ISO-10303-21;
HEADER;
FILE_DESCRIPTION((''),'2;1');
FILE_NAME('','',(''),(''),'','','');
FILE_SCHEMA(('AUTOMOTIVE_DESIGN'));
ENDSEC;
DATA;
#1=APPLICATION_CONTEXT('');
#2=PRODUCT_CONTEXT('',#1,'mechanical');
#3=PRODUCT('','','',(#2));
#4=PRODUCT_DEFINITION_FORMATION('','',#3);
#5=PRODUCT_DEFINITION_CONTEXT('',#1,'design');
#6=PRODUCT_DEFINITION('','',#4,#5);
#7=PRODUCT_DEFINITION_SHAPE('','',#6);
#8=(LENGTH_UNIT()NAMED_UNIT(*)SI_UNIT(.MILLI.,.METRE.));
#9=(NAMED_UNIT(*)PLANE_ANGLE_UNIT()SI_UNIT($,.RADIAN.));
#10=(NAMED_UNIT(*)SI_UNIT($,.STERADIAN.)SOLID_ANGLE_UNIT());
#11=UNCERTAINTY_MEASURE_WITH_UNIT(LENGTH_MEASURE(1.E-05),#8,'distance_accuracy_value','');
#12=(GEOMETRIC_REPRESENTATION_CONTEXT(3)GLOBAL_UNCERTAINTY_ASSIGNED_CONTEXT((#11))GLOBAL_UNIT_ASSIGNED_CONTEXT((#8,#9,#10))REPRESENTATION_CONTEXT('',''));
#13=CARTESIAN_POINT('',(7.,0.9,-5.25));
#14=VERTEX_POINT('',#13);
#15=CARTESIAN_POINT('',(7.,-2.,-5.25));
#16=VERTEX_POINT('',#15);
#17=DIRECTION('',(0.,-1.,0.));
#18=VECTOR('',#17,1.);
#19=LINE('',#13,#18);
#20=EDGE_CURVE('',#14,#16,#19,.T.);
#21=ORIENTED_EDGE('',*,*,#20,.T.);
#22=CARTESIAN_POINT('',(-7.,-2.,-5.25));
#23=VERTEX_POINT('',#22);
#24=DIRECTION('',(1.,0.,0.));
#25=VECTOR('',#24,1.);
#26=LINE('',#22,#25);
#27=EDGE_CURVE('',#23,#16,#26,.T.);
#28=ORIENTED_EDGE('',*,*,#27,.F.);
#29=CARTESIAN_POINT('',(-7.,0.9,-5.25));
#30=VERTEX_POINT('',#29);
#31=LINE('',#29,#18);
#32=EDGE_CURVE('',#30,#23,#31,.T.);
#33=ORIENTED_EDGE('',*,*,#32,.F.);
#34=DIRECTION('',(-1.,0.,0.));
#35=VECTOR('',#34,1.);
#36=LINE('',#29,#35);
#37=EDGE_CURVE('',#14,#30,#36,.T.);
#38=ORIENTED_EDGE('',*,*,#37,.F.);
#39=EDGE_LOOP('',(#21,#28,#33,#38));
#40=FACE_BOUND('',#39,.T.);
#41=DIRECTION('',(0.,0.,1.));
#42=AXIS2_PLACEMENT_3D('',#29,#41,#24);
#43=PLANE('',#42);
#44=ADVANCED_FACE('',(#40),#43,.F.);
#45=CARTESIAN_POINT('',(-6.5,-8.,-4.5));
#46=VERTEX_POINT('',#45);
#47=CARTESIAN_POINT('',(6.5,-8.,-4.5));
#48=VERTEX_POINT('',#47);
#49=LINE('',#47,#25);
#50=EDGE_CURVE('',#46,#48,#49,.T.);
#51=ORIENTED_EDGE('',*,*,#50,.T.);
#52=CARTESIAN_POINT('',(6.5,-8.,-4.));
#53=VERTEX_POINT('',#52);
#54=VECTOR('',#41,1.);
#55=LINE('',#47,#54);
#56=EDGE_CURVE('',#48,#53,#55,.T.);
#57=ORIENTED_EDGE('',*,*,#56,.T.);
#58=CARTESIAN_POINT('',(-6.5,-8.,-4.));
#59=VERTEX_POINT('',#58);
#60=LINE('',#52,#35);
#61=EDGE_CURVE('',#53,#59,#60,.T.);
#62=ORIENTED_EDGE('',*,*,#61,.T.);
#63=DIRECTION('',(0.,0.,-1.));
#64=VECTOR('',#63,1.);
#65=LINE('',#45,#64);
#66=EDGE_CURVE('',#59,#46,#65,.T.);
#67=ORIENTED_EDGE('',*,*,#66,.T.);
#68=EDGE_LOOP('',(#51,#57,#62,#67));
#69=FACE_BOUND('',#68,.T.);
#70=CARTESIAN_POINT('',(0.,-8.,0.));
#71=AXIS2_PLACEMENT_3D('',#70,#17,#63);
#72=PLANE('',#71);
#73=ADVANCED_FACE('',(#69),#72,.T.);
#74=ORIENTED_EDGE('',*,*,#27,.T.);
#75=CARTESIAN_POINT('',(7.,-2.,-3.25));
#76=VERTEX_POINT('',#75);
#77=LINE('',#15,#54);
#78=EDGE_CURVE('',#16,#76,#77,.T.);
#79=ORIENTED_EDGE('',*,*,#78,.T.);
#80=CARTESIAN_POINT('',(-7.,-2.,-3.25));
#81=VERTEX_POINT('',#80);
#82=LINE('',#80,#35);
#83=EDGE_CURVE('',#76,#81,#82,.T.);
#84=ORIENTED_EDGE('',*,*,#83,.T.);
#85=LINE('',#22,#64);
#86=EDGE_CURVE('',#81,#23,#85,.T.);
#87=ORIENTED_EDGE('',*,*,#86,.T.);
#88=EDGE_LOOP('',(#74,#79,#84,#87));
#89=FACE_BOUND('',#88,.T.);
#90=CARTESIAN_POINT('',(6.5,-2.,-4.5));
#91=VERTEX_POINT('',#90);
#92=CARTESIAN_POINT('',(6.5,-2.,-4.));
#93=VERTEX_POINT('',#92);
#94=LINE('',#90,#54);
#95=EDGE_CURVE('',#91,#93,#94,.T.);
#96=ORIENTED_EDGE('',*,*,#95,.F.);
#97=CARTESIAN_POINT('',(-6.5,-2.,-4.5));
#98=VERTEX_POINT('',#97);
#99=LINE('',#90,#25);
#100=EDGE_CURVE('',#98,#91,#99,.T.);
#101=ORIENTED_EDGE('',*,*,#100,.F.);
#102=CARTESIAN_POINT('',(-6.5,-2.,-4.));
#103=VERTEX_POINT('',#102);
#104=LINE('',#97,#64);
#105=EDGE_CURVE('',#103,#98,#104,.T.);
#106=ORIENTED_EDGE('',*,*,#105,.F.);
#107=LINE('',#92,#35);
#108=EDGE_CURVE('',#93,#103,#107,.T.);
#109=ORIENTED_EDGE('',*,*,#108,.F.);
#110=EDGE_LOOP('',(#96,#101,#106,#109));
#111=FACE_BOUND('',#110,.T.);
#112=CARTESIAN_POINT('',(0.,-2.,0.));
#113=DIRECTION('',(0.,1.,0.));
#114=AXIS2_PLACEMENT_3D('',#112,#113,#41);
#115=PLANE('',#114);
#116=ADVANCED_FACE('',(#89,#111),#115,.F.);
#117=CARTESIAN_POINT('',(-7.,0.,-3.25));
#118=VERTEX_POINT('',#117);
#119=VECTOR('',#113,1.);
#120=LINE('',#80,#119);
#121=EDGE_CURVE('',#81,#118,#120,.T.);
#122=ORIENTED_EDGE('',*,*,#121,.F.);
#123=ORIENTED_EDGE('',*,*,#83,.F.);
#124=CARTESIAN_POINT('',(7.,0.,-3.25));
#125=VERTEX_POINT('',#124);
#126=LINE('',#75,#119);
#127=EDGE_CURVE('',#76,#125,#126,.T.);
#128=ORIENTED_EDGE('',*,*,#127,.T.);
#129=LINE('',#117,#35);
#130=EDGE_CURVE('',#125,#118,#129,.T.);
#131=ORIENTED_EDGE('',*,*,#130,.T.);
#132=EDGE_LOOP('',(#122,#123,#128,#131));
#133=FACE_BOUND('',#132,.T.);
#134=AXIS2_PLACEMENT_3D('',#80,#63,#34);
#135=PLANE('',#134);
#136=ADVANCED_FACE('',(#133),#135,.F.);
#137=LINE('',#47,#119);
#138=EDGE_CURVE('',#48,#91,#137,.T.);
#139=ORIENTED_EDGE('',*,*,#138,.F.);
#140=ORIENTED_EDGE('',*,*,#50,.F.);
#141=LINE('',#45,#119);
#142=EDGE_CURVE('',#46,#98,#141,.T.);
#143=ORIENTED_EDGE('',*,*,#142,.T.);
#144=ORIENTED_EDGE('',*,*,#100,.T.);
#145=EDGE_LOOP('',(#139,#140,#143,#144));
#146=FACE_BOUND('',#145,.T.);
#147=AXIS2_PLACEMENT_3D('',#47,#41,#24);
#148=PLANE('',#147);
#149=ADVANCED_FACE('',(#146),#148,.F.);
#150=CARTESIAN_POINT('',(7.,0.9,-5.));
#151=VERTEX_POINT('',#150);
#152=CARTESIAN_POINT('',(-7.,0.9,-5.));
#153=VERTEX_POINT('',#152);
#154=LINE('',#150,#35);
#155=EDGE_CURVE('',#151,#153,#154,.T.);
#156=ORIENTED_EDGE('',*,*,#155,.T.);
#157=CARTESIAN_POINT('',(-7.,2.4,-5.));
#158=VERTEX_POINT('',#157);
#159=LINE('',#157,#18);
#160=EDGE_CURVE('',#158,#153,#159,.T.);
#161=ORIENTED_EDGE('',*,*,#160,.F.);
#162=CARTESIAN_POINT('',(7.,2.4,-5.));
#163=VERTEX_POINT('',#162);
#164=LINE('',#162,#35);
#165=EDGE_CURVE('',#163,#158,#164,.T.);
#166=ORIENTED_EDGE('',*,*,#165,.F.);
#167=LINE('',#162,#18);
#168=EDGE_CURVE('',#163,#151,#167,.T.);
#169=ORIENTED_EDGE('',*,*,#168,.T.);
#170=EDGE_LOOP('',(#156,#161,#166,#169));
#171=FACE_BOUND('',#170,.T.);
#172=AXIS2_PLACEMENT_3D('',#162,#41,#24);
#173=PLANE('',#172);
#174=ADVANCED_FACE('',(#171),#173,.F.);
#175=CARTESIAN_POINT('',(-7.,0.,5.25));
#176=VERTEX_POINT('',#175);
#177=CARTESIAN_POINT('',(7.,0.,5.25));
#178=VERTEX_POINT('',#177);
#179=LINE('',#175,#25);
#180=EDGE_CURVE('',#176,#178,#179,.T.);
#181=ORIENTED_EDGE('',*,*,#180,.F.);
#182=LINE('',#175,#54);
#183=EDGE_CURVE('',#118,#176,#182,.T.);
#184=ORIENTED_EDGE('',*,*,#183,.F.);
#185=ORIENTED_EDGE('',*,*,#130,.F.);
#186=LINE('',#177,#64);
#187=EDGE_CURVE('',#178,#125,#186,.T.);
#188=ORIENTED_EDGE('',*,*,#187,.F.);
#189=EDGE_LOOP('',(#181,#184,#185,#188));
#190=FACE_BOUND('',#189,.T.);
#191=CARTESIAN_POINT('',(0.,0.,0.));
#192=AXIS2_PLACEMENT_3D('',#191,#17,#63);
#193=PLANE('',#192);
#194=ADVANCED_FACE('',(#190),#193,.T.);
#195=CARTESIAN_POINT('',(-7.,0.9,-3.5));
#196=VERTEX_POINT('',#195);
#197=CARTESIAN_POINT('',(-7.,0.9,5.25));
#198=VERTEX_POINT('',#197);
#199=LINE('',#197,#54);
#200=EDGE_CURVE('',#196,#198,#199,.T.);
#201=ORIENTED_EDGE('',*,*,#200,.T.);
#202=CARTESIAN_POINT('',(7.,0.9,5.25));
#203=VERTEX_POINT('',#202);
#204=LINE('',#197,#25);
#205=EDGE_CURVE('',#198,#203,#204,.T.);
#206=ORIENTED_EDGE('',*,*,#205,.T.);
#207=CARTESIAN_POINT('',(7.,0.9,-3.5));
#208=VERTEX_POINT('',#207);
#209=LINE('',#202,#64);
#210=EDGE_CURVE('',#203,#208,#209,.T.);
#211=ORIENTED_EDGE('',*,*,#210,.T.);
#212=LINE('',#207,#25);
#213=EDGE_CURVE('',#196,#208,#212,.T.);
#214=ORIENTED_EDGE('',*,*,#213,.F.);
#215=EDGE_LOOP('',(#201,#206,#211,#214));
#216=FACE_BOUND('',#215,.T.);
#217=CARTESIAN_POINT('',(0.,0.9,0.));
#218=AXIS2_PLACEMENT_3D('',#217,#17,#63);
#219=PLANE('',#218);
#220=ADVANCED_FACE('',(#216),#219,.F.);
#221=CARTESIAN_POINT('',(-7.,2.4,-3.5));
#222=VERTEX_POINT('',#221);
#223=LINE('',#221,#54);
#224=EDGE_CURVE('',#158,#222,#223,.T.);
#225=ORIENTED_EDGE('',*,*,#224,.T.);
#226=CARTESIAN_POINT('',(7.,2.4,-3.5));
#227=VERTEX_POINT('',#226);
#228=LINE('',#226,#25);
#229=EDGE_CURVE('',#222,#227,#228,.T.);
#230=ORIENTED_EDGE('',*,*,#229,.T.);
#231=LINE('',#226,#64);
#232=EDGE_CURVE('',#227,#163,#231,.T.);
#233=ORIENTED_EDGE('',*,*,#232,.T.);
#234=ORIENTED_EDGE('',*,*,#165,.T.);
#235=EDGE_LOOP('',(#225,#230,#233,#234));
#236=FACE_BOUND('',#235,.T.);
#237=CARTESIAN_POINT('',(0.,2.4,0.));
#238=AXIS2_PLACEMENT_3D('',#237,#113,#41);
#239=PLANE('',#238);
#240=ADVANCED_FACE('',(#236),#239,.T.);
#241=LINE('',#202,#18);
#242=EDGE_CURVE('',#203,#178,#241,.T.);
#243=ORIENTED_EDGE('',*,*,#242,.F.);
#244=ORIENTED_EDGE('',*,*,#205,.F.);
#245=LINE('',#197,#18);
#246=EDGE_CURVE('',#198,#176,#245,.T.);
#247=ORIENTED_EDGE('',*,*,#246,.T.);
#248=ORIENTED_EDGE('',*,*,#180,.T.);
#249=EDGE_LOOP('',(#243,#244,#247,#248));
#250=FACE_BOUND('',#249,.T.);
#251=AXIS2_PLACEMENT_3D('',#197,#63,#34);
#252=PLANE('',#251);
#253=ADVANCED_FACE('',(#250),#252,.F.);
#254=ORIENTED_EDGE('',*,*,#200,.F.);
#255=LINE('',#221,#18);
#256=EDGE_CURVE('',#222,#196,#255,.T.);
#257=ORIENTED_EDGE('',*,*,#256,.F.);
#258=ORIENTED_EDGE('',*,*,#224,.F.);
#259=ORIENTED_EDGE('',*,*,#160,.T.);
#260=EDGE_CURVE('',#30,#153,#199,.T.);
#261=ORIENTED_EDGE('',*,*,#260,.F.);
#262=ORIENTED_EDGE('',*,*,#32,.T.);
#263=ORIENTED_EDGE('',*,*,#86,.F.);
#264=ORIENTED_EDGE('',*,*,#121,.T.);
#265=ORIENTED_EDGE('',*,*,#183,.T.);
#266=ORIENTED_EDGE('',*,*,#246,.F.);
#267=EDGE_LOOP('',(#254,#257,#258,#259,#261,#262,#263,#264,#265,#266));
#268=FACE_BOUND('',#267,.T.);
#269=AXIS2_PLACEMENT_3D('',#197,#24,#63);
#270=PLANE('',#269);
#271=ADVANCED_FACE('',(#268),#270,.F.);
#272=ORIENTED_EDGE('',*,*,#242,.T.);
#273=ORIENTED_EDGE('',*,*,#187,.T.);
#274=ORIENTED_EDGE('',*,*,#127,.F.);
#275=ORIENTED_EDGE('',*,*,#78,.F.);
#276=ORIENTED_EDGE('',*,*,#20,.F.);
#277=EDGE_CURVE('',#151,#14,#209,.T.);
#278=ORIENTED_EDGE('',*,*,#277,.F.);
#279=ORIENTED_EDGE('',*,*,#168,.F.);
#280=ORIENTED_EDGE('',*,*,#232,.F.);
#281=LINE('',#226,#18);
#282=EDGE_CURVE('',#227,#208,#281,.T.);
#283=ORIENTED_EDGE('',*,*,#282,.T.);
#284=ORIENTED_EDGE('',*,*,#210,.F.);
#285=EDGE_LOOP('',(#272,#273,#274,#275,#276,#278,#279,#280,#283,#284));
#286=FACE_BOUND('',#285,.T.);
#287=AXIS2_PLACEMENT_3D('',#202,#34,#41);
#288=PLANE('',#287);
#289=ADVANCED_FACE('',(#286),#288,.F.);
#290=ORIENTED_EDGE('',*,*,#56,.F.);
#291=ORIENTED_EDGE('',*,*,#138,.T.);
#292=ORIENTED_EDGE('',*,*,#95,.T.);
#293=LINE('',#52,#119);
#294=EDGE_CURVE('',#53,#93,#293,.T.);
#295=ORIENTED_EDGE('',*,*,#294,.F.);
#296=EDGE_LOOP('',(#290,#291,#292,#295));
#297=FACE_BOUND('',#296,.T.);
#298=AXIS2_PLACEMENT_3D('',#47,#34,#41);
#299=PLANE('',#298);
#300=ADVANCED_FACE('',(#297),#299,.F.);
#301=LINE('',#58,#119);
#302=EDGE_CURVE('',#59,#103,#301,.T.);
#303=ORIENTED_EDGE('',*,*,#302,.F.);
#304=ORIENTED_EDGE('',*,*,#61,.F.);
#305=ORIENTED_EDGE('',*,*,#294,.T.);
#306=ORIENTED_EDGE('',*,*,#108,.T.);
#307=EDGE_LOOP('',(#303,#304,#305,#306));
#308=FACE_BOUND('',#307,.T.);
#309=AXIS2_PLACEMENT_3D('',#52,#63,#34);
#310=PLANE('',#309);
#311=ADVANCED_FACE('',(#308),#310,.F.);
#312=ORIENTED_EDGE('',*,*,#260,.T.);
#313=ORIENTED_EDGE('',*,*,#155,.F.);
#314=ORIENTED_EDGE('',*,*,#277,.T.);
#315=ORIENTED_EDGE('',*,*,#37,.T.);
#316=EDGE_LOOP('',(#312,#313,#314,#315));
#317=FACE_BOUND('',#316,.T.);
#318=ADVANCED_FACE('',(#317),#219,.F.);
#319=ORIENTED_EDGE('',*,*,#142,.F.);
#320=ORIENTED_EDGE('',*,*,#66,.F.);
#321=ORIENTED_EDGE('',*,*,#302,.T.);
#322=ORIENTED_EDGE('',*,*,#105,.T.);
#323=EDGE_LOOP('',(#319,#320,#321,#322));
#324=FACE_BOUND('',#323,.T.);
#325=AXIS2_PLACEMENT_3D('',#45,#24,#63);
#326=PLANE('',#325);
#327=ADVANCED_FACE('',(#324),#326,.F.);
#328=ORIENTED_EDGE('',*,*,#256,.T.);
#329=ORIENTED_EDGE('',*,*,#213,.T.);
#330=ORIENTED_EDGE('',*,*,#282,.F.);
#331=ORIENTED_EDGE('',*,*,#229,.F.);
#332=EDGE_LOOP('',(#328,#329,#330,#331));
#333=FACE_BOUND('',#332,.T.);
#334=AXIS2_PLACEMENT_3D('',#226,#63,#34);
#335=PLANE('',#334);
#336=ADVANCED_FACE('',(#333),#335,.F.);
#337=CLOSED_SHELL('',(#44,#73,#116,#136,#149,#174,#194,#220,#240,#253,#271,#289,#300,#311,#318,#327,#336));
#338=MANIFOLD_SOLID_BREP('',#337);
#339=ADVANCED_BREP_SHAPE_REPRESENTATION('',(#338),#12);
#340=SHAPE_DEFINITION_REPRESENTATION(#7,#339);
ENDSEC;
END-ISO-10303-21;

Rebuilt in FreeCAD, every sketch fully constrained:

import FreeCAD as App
import Part
import Sketcher
from FreeCAD import Vector

doc = App.newDocument("Part")
body = doc.addObject("PartDesign::Body", "Body")

# Sketch on XZ plane
sketch1 = body.newObject("Sketcher::SketchObject", "Sketch")
sketch1.AttachmentSupport = (doc.getObject("XZ_Plane"), [""])
sketch1.MapMode = "FlatFace"
sketch1.addGeometry(Part.LineSegment(Vector(-7, -5, 0), Vector(-7, 5, 0)), False)
sketch1.addGeometry(Part.LineSegment(Vector(-7, 5, 0), Vector(7, 5, 0)), False)
sketch1.addGeometry(Part.LineSegment(Vector(7, 5, 0), Vector(7, -5, 0)), False)
sketch1.addGeometry(Part.LineSegment(Vector(7, -5, 0), Vector(-7, -5, 0)), False)
sketch1.addConstraint(Sketcher.Constraint("Coincident", 0, 2, 1, 1))
sketch1.addConstraint(Sketcher.Constraint("Coincident", 1, 2, 2, 1))
sketch1.addConstraint(Sketcher.Constraint("Coincident", 2, 2, 3, 1))
sketch1.addConstraint(Sketcher.Constraint("Coincident", 3, 2, 0, 1))
sketch1.addConstraint(Sketcher.Constraint("Vertical", 0))
sketch1.addConstraint(Sketcher.Constraint("Horizontal", 1))
sketch1.addConstraint(Sketcher.Constraint("Vertical", 2))
sketch1.addConstraint(Sketcher.Constraint("Horizontal", 3))
sketch1.addConstraint(Sketcher.Constraint("Symmetric", 0, 2, 2, 2, -1, 1))
sketch1.addConstraint(Sketcher.Constraint("DistanceX", 1, 1, 1, 2, 14.0))
sketch1.addConstraint(Sketcher.Constraint("DistanceY", 0, 1, 0, 2, 10.5))
pad1 = body.newObject("PartDesign::Pad", "Pad")
pad1.Profile = sketch1
pad1.Length = 0.9
pad1.Reversed = True

# Sketch on XZ plane
sketch2 = body.newObject("Sketcher::SketchObject", "Sketch001")
sketch2.AttachmentSupport = (doc.getObject("XZ_Plane"), [""])
sketch2.MapMode = "FlatFace"
sketch2.addGeometry(Part.LineSegment(Vector(-7, -3.2, 0), Vector(-7, -5.2, 0)), False)
sketch2.addGeometry(Part.LineSegment(Vector(-7, -5.2, 0), Vector(7, -5.2, 0)), False)
sketch2.addGeometry(Part.LineSegment(Vector(7, -5.2, 0), Vector(7, -3.2, 0)), False)
sketch2.addGeometry(Part.LineSegment(Vector(7, -3.2, 0), Vector(-7, -3.2, 0)), False)
sketch2.addConstraint(Sketcher.Constraint("Coincident", 0, 2, 1, 1))
sketch2.addConstraint(Sketcher.Constraint("Coincident", 1, 2, 2, 1))
sketch2.addConstraint(Sketcher.Constraint("Coincident", 2, 2, 3, 1))
sketch2.addConstraint(Sketcher.Constraint("Coincident", 3, 2, 0, 1))
sketch2.addConstraint(Sketcher.Constraint("Vertical", 0))
sketch2.addConstraint(Sketcher.Constraint("Horizontal", 1))
sketch2.addConstraint(Sketcher.Constraint("Vertical", 2))
sketch2.addConstraint(Sketcher.Constraint("Horizontal", 3))
sketch2.addConstraint(Sketcher.Constraint("DistanceX", 1, 1, 1, 2, 14.0))
sketch2.addConstraint(Sketcher.Constraint("DistanceY", 0, 2, 0, 1, 2.0))
sketch2.addConstraint(Sketcher.Constraint("DistanceX", 0, 2, -1, 1, 7.0))
sketch2.addConstraint(Sketcher.Constraint("DistanceY", 0, 2, -1, 1, 5.25))
pad2 = body.newObject("PartDesign::Pad", "Pad001")
pad2.Profile = sketch2
pad2.Length = 2

# Sketch on XZ plane
sketch3 = body.newObject("Sketcher::SketchObject", "Sketch002")
sketch3.AttachmentSupport = (doc.getObject("XZ_Plane"), [""])
sketch3.MapMode = "FlatFace"
sketch3.AttachmentOffset = App.Placement(Vector(0, 0, 2), App.Rotation())
sketch3.addGeometry(Part.LineSegment(Vector(-6.5, -4, 0), Vector(-6.5, -4.5, 0)), False)
sketch3.addGeometry(Part.LineSegment(Vector(-6.5, -4.5, 0), Vector(6.5, -4.5, 0)), False)
sketch3.addGeometry(Part.LineSegment(Vector(6.5, -4.5, 0), Vector(6.5, -4, 0)), False)
sketch3.addGeometry(Part.LineSegment(Vector(6.5, -4, 0), Vector(-6.5, -4, 0)), False)
sketch3.addConstraint(Sketcher.Constraint("Coincident", 0, 2, 1, 1))
sketch3.addConstraint(Sketcher.Constraint("Coincident", 1, 2, 2, 1))
sketch3.addConstraint(Sketcher.Constraint("Coincident", 2, 2, 3, 1))
sketch3.addConstraint(Sketcher.Constraint("Coincident", 3, 2, 0, 1))
sketch3.addConstraint(Sketcher.Constraint("Vertical", 0))
sketch3.addConstraint(Sketcher.Constraint("Horizontal", 1))
sketch3.addConstraint(Sketcher.Constraint("Vertical", 2))
sketch3.addConstraint(Sketcher.Constraint("Horizontal", 3))
sketch3.addConstraint(Sketcher.Constraint("DistanceX", 1, 1, 1, 2, 13.0))
sketch3.addConstraint(Sketcher.Constraint("DistanceY", 0, 2, 0, 1, 0.5))
sketch3.addConstraint(Sketcher.Constraint("DistanceY", 2, 2, -1, 1, 4.0))
sketch3.addConstraint(Sketcher.Constraint("DistanceX", 0, 2, -1, 1, 6.5))
pad3 = body.newObject("PartDesign::Pad", "Pad002")
pad3.Profile = sketch3
pad3.Length = 6

# Sketch on XZ plane
sketch4 = body.newObject("Sketcher::SketchObject", "Sketch003")
sketch4.AttachmentSupport = (doc.getObject("XZ_Plane"), [""])
sketch4.MapMode = "FlatFace"
sketch4.AttachmentOffset = App.Placement(Vector(0, 0, -0.9), App.Rotation())
sketch4.addGeometry(Part.LineSegment(Vector(-7, -5, 0), Vector(-7, -3.5, 0)), False)
sketch4.addGeometry(Part.LineSegment(Vector(-7, -3.5, 0), Vector(7, -3.5, 0)), False)
sketch4.addGeometry(Part.LineSegment(Vector(7, -3.5, 0), Vector(7, -5, 0)), False)
sketch4.addGeometry(Part.LineSegment(Vector(7, -5, 0), Vector(-7, -5, 0)), False)
sketch4.addConstraint(Sketcher.Constraint("Coincident", 0, 2, 1, 1))
sketch4.addConstraint(Sketcher.Constraint("Coincident", 1, 2, 2, 1))
sketch4.addConstraint(Sketcher.Constraint("Coincident", 2, 2, 3, 1))
sketch4.addConstraint(Sketcher.Constraint("Coincident", 3, 2, 0, 1))
sketch4.addConstraint(Sketcher.Constraint("Vertical", 0))
sketch4.addConstraint(Sketcher.Constraint("Horizontal", 1))
sketch4.addConstraint(Sketcher.Constraint("Vertical", 2))
sketch4.addConstraint(Sketcher.Constraint("Horizontal", 3))
sketch4.addConstraint(Sketcher.Constraint("DistanceX", 1, 1, 1, 2, 14.0))
sketch4.addConstraint(Sketcher.Constraint("DistanceY", 0, 1, 0, 2, 1.5))
sketch4.addConstraint(Sketcher.Constraint("DistanceX", 0, 2, -1, 1, 7.0))
sketch4.addConstraint(Sketcher.Constraint("DistanceY", 2, 2, -1, 1, 5.0))
pad4 = body.newObject("PartDesign::Pad", "Pad003")
pad4.Profile = sketch4
pad4.Length = 1.5
pad4.Reversed = True

doc.recompute()
